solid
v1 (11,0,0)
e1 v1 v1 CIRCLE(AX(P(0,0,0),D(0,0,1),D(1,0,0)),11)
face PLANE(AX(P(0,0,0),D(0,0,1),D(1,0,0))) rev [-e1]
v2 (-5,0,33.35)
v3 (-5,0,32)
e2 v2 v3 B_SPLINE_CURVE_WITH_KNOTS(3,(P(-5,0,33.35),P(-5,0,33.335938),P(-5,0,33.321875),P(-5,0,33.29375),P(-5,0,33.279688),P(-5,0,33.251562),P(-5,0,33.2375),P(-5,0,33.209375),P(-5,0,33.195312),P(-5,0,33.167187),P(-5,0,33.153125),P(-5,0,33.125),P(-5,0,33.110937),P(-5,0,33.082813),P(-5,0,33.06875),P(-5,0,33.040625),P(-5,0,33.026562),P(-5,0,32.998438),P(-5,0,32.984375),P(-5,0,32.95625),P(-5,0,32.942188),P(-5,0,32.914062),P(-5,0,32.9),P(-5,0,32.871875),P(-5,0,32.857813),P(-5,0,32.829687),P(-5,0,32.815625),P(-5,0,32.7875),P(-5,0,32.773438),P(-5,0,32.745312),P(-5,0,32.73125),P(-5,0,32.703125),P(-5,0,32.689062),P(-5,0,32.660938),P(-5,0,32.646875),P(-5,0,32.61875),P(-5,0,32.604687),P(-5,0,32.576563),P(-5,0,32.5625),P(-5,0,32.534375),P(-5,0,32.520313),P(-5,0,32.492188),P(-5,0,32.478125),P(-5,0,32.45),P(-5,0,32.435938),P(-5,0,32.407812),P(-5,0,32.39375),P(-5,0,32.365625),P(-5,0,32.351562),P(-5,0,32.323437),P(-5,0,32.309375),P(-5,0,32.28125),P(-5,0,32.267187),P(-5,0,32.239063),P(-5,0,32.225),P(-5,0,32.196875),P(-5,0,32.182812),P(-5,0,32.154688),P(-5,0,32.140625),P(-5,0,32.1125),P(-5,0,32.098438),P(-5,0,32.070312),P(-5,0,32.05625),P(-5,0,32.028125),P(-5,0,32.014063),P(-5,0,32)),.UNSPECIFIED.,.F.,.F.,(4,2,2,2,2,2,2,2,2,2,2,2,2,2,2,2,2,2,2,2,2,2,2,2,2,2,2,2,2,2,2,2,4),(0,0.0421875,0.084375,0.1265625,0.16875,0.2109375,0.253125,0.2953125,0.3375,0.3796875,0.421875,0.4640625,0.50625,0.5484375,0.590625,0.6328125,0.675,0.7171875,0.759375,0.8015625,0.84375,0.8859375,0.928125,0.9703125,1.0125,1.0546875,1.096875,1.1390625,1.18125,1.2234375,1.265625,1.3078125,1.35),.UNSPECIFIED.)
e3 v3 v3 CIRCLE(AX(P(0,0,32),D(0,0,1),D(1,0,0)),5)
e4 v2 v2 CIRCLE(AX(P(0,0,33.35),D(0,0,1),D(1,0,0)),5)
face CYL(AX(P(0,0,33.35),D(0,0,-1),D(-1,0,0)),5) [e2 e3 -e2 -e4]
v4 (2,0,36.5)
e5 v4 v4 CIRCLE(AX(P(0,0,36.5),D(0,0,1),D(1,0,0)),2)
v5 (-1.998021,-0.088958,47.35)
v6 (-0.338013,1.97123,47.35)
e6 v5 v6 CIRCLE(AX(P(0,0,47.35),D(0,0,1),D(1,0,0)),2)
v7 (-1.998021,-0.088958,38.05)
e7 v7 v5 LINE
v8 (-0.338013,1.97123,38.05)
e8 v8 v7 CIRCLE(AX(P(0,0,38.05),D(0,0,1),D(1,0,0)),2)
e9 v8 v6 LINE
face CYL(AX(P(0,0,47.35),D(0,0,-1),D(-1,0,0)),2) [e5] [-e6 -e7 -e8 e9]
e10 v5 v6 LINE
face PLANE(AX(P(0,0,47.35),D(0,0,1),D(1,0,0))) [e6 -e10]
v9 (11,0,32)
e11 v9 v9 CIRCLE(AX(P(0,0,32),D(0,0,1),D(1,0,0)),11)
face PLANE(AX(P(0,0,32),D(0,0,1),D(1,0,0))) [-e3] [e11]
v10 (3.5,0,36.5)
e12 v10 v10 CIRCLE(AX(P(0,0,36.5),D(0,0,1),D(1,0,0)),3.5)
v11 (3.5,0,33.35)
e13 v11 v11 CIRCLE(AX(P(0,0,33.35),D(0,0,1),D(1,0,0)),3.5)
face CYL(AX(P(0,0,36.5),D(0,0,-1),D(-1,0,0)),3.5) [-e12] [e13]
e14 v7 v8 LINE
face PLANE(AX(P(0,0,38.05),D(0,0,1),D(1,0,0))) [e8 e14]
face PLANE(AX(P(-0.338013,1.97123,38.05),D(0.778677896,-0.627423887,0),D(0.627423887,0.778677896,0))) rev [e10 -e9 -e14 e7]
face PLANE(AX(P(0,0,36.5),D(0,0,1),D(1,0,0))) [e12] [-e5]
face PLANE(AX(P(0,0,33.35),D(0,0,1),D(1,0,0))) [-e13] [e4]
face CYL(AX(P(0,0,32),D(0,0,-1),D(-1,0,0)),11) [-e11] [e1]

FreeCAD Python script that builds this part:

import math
import FreeCAD as App
import Part
import Sketcher

doc = App.newDocument("Part")
body = doc.addObject("PartDesign::Body", "Body")

sketch1 = body.newObject("Sketcher::SketchObject", "Sketch")
sketch1.AttachmentSupport = (doc.getObject("XY_Plane"), [""])
sketch1.MapMode = "FlatFace"
sketch1.addGeometry(Part.Circle(App.Vector(0, 0, 0), App.Vector(0, 0, 1), 11), False)
sketch1.addConstraint([
    Sketcher.Constraint("Coincident", 0, 3, -1, 1),
    Sketcher.Constraint("Diameter", 0, 22.0),
])
pad1 = body.newObject("PartDesign::Pad", "Pad")
pad1.Profile = sketch1
pad1.Length = 32

sketch2 = body.newObject("Sketcher::SketchObject", "Sketch001")
sketch2.AttachmentSupport = (doc.getObject("XY_Plane"), [""])
sketch2.MapMode = "FlatFace"
sketch2.AttachmentOffset = App.Placement(App.Vector(0, 0, 32), App.Rotation())
sketch2.addGeometry(Part.Circle(App.Vector(0, 0, 0), App.Vector(0, 0, 1), 5), False)
sketch2.addConstraint([
    Sketcher.Constraint("Coincident", 0, 3, -1, 1),
    Sketcher.Constraint("Diameter", 0, 10.0),
])
pad2 = body.newObject("PartDesign::Pad", "Pad001")
pad2.Profile = sketch2
pad2.Length = 1.35

sketch3 = body.newObject("Sketcher::SketchObject", "Sketch002")
sketch3.AttachmentSupport = (doc.getObject("XY_Plane"), [""])
sketch3.MapMode = "FlatFace"
sketch3.AttachmentOffset = App.Placement(App.Vector(0, 0, 33.35), App.Rotation())
sketch3.addGeometry(Part.Circle(App.Vector(0, 0, 0), App.Vector(0, 0, 1), 3.5), False)
sketch3.addConstraint([
    Sketcher.Constraint("Coincident", 0, 3, -1, 1),
    Sketcher.Constraint("Diameter", 0, 7.0),
])
pad3 = body.newObject("PartDesign::Pad", "Pad002")
pad3.Profile = sketch3
pad3.Length = 3.15

sketch4 = body.newObject("Sketcher::SketchObject", "Sketch003")
sketch4.AttachmentSupport = (doc.getObject("XY_Plane"), [""])
sketch4.MapMode = "FlatFace"
sketch4.AttachmentOffset = App.Placement(App.Vector(0, 0, 36.5), App.Rotation())
sketch4.addGeometry(Part.Circle(App.Vector(0, 0, 0), App.Vector(0, 0, 1), 2), False)
sketch4.addConstraint([
    Sketcher.Constraint("Coincident", 0, 3, -1, 1),
    Sketcher.Constraint("Diameter", 0, 4.0),
])
pad4 = body.newObject("PartDesign::Pad", "Pad003")
pad4.Profile = sketch4
pad4.Length = 10.85

sketch5 = body.newObject("Sketcher::SketchObject", "Sketch004")
sketch5.AttachmentSupport = (doc.getObject("XY_Plane"), [""])
sketch5.MapMode = "FlatFace"
sketch5.AttachmentOffset = App.Placement(App.Vector(0, 0, 38.05), App.Rotation())
sketch5.addGeometry([
    Part.LineSegment(App.Vector(-2, -0.1, 0), App.Vector(-0.3, 2, 0)),
    Part.ArcOfCircle(Part.Circle(App.Vector(0, 0, 0), App.Vector(0, 0, 1), 2), math.radians(100), math.radians(183)),
], False)
sketch5.addConstraint([
    Sketcher.Constraint("Coincident", 0, 1, 1, 2),
    Sketcher.Constraint("Coincident", 1, 1, 0, 2),
    Sketcher.Constraint("Coincident", 1, 3, -1, 1),
    Sketcher.Constraint("Radius", 1, 2.0),
    Sketcher.Constraint("Distance", 0, 2.645751),
    Sketcher.Constraint("DistanceX", 0, 1, -1, 1, 1.998021),
])
pocket1 = body.newObject("PartDesign::Pocket", "Pocket")
pocket1.Profile = sketch5
pocket1.Length = 9.3
pocket1.Reversed = True

doc.recompute()
